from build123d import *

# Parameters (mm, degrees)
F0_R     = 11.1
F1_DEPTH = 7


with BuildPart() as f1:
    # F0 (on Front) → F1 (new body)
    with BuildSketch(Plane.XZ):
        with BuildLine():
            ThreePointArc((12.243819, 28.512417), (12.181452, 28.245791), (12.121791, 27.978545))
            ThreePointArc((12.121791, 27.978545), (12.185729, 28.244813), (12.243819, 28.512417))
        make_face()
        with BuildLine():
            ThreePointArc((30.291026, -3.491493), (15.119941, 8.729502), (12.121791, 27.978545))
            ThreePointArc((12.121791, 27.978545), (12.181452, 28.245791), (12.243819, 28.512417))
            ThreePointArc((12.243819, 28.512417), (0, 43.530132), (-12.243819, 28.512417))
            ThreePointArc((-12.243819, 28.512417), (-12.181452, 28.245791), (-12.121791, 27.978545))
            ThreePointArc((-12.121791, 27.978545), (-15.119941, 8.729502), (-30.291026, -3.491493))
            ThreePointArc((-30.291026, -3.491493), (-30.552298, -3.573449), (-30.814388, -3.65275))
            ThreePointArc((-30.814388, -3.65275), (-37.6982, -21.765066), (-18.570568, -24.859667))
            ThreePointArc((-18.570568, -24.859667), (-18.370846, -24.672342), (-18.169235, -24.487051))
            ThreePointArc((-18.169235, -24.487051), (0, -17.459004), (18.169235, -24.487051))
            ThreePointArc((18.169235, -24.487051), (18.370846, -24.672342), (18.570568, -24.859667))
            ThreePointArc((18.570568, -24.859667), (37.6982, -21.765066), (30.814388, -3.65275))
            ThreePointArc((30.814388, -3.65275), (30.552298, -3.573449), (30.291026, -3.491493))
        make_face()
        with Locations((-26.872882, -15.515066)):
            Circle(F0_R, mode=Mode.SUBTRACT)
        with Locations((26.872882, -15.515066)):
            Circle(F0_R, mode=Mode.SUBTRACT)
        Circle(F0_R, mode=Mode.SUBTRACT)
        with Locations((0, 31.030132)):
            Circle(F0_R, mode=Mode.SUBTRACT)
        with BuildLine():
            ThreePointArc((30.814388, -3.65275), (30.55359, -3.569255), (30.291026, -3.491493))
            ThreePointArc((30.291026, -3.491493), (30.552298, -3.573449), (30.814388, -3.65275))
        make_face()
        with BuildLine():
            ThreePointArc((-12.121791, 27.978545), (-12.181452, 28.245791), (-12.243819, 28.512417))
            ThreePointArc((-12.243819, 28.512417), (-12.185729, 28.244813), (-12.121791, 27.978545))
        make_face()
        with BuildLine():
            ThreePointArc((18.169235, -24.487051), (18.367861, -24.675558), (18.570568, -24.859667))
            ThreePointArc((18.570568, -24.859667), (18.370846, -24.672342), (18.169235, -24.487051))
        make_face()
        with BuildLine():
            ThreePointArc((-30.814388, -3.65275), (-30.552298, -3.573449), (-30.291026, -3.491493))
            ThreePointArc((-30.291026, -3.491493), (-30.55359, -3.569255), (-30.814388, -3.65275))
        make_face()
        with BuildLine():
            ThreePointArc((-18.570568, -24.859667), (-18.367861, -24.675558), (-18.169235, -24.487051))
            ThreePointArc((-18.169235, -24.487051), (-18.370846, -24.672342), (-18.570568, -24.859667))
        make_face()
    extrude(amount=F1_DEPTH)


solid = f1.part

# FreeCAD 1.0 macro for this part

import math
import FreeCAD as App
import Part
import Sketcher
Q = App.Units.Quantity

doc = App.newDocument("Part")
body = doc.addObject("PartDesign::Body", "Body")

# Sketch on XZ plane
sketch1 = body.newObject("Sketcher::SketchObject", "Sketch")
sketch1.AttachmentSupport = (doc.getObject("XZ_Plane"), [""])
sketch1.MapMode = "FlatFace"
sketch1.addGeometry([
    Part.ArcOfCircle(Part.Circle(App.Vector(0, 31, 0), App.Vector(0, 0, 1), 12.5), math.radians(-14.13), math.radians(-11.62)),  # 0
    Part.ArcOfCircle(Part.Circle(App.Vector(0, 31, 0), App.Vector(0, 0, 1), 12.5), math.radians(-12), math.radians(192)),  # 1
    Part.ArcOfCircle(Part.Circle(App.Vector(0, 31, 0), App.Vector(0, 0, 1), 12.5), math.radians(-168.38), math.radians(-165.87)),  # 2
    Part.ArcOfCircle(Part.Circle(App.Vector(-38.5, 22.2, 0), App.Vector(0, 0, 1), 27), math.radians(-72), math.radians(12)),  # 3
    Part.ArcOfCircle(Part.Circle(App.Vector(-26.9, -15.5, 0), App.Vector(0, 0, 1), 12.5), math.radians(105.87), math.radians(108.38)),  # 4
    Part.ArcOfCircle(Part.Circle(App.Vector(-26.9, -15.5, 0), App.Vector(0, 0, 1), 12.5), math.radians(108), math.radians(312)),  # 5
    Part.ArcOfCircle(Part.Circle(App.Vector(-26.9, -15.5, 0), App.Vector(0, 0, 1), 12.5), math.radians(-48.38), math.radians(-45.87)),  # 6
    Part.ArcOfCircle(Part.Circle(App.Vector(0, -44.5, 0), App.Vector(0, 0, 1), 27), math.radians(48), math.radians(132)),  # 7
    Part.ArcOfCircle(Part.Circle(App.Vector(26.9, -15.5, 0), App.Vector(0, 0, 1), 12.5), math.radians(-134.13), math.radians(-131.62)),  # 8
    Part.ArcOfCircle(Part.Circle(App.Vector(26.9, -15.5, 0), App.Vector(0, 0, 1), 12.5), math.radians(-132), math.radians(72)),  # 9
    Part.ArcOfCircle(Part.Circle(App.Vector(26.9, -15.5, 0), App.Vector(0, 0, 1), 12.5), math.radians(71.62), math.radians(74.13)),  # 10
    Part.ArcOfCircle(Part.Circle(App.Vector(38.5, 22.2, 0), App.Vector(0, 0, 1), 27), math.radians(168), math.radians(252)),  # 11
    Part.Circle(App.Vector(-26.9, -15.5, 0), App.Vector(0, 0, 1), 11.1),  # 12
    Part.Circle(App.Vector(26.9, -15.5, 0), App.Vector(0, 0, 1), 11.1),  # 13
    Part.Circle(App.Vector(0, 0, 0), App.Vector(0, 0, 1), 11.1),  # 14
    Part.Circle(App.Vector(0, 31, 0), App.Vector(0, 0, 1), 11.1),  # 15
], False)
sketch1.addConstraint([
    Sketcher.Constraint("Tangent", 0, 2, 1, 1),
    Sketcher.Constraint("Tangent", 1, 2, 2, 1),
    Sketcher.Constraint("Coincident", 2, 2, 3, 2),
    Sketcher.Constraint("Coincident", 3, 1, 4, 1),
    Sketcher.Constraint("Tangent", 4, 2, 5, 1),
    Sketcher.Constraint("Coincident", 5, 2, 6, 1),
    Sketcher.Constraint("Coincident", 6, 2, 7, 2),
    Sketcher.Constraint("Coincident", 7, 1, 8, 1),
    Sketcher.Constraint("Coincident", 8, 2, 9, 1),
    Sketcher.Constraint("Tangent", 9, 2, 10, 1),
    Sketcher.Constraint("Coincident", 10, 2, 11, 2),
    Sketcher.Constraint("Coincident", 11, 1, 0, 1),
    Sketcher.Constraint("Coincident", 14, 3, -1, 1),
    Sketcher.Constraint("Coincident", 12, 3, 5, 3),
    Sketcher.Constraint("Coincident", 13, 3, 9, 3),
    Sketcher.Constraint("Coincident", 15, 3, 1, 3),
    Sketcher.Constraint("Equal", 0, 2),
    Sketcher.Constraint("Equal", 1, 5),
    Sketcher.Constraint("Equal", 3, 7),
    Sketcher.Constraint("Equal", 6, 8),
    Sketcher.Constraint("Equal", 5, 9),
    Sketcher.Constraint("Equal", 4, 10),
    Sketcher.Constraint("Equal", 7, 11),
    Sketcher.Constraint("Equal", 12, 13),
    Sketcher.Constraint("Equal", 13, 14),
    Sketcher.Constraint("Equal", 14, 15),
    Sketcher.Constraint("Symmetric", 6, 3, 8, 3, -2),
    Sketcher.Constraint("Symmetric", 3, 3, 11, 3, -2),
    Sketcher.Constraint("Symmetric", 0, 2, 1, 2, -2),
    Sketcher.Constraint("Symmetric", 4, 2, 9, 2, -2),
    Sketcher.Constraint("PointOnObject", 7, 3, -2),
    Sketcher.Constraint("Horizontal", 5, 2, 8, 2),
    Sketcher.Constraint("Radius", 3, Q("26.999999 mm")),
    Sketcher.Constraint("Diameter", 12, Q("22.2 mm")),
    Sketcher.Constraint("Radius", 1, Q("12.5 mm")),
    Sketcher.Constraint("Radius", 4, Q("12.500239 mm")),
    Sketcher.Constraint("Radius", 0, Q("12.500534 mm")),
    Sketcher.Constraint("Radius", 6, Q("12.498313 mm")),
    Sketcher.Constraint("DistanceY", -1, 1, 3, 3, Q("22.229502 mm")),
    Sketcher.Constraint("DistanceY", 6, 3, -1, 1, Q("15.516302 mm")),
    Sketcher.Constraint("DistanceY", 5, 3, 1, 3, Q("46.545198 mm")),
    Sketcher.Constraint("DistanceY", 2, 2, 0, 3, Q("3.051699 mm")),
    Sketcher.Constraint("DistanceY", 4, 3, 3, 1, Q("12.0238 mm")),
    Sketcher.Constraint("DistanceX", 3, 3, 3, 1, Q("8.2116 mm")),
    Sketcher.Constraint("DistanceY", 5, 2, 12, 3, Q("9.344601 mm")),
    Sketcher.Constraint("DistanceX", 6, 3, 6, 2, Q("8.702499 mm")),
    Sketcher.Constraint("DistanceY", 7, 1, 9, 2, Q("20.834301 mm")),
    Sketcher.Constraint("DistanceX", -1, 1, 0, 2, Q("12.243819 mm")),
])
pad1 = body.newObject("PartDesign::Pad", "Pad")
pad1.Profile = sketch1
pad1.Length = 7

doc.recompute()
